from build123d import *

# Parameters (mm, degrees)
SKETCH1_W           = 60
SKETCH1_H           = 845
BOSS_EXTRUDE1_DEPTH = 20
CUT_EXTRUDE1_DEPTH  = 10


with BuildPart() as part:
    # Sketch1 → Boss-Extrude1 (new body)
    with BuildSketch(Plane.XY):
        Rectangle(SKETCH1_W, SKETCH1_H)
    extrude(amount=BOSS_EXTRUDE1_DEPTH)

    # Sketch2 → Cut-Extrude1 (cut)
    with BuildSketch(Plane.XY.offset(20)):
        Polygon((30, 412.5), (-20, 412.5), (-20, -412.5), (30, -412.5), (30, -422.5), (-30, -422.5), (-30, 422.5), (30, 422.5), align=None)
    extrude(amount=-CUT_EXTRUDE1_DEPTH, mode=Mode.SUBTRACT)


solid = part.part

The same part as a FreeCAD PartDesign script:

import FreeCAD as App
import Part
import Sketcher
from FreeCAD import Vector
Q = App.Units.Quantity


def add_polygon(sketch, points):
    """Adds a closed chain of lines whose ends are joined by coincident constraints."""
    first, n = sketch.GeometryCount, len(points)
    for a, b in zip(points, points[1:] + points[:1]):
        sketch.addGeometry(Part.LineSegment(App.Vector(*a, 0), App.Vector(*b, 0)), False)
    for i in range(n):
        sketch.addConstraint(Sketcher.Constraint("Coincident", first + i, 2, first + (i + 1) % n, 1))

doc = App.newDocument("Part")
params = doc.addObject("Spreadsheet::Sheet", "Params")
for row, (alias, value) in enumerate([
    ("sketch1_width", "60 mm"),
    ("sketch1_height", "845 mm"),
    ("pad1_length", "20 mm"),
    ("sketch2_width", "50 mm"),
    ("sketch2_width2", "60 mm"),
    ("sketch2_height", "10 mm"),
    ("sketch2_height2", "845 mm"),
    ("pocket1_length", "10 mm"),
], start=1):
    params.set(f"A{row}", alias)
    params.set(f"B{row}", "=" + value)
    params.setAlias(f"B{row}", alias)

body = doc.addObject("PartDesign::Body", "Body")

sketch1 = body.newObject("Sketcher::SketchObject", "Sketch")
sketch1.AttachmentSupport = (doc.getObject("XY_Plane"), [""])
sketch1.MapMode = "FlatFace"
add_polygon(sketch1, [(-30, 422), (-30, -422), (30, -422), (30, 422)])
sketch1.addConstraint(Sketcher.Constraint("Vertical", 0))
sketch1.addConstraint(Sketcher.Constraint("Horizontal", 1))
sketch1.addConstraint(Sketcher.Constraint("Vertical", 2))
sketch1.addConstraint(Sketcher.Constraint("Horizontal", 3))
sketch1.addConstraint(Sketcher.Constraint("Symmetric", 0, 2, 2, 2, -1, 1))
sketch1.addConstraint(Sketcher.Constraint("DistanceX", 1, 1, 1, 2, Q("60 mm")))
sketch1.addConstraint(Sketcher.Constraint("DistanceY", 0, 2, 0, 1, Q("845 mm")))
sketch1.setExpression("Constraints[9]", "Params.sketch1_width")
sketch1.setExpression("Constraints[10]", "Params.sketch1_height")
pad1 = body.newObject("PartDesign::Pad", "Pad")
pad1.Profile = sketch1
pad1.setExpression("Length", "Params.pad1_length")

sketch2 = body.newObject("Sketcher::SketchObject", "Sketch001")
sketch2.AttachmentSupport = (doc.getObject("XY_Plane"), [""])
sketch2.MapMode = "FlatFace"
sketch2.AttachmentOffset = App.Placement(Vector(0, 0, 20), App.Rotation())
add_polygon(sketch2, [(-20, 412), (30, 412), (30, 422), (-30, 422), (-30, -422), (30, -422), (30, -412), (-20, -412)])
sketch2.addConstraint(Sketcher.Constraint("Horizontal", 0))
sketch2.addConstraint(Sketcher.Constraint("Vertical", 1))
sketch2.addConstraint(Sketcher.Constraint("Horizontal", 2))
sketch2.addConstraint(Sketcher.Constraint("Vertical", 3))
sketch2.addConstraint(Sketcher.Constraint("Horizontal", 4))
sketch2.addConstraint(Sketcher.Constraint("Vertical", 5))
sketch2.addConstraint(Sketcher.Constraint("Horizontal", 6))
sketch2.addConstraint(Sketcher.Constraint("Vertical", 7))
sketch2.addConstraint(Sketcher.Constraint("Symmetric", 1, 2, 3, 2, -1, 1))
sketch2.addConstraint(Sketcher.Constraint("Symmetric", 0, 2, 5, 2, -1))
sketch2.addConstraint(Sketcher.Constraint("DistanceX", 0, 1, 0, 2, Q("50 mm")))
sketch2.addConstraint(Sketcher.Constraint("DistanceX", 2, 2, 2, 1, Q("60 mm")))
sketch2.addConstraint(Sketcher.Constraint("DistanceY", 1, 1, 1, 2, Q("10 mm")))
sketch2.addConstraint(Sketcher.Constraint("DistanceY", 3, 2, 3, 1, Q("845 mm")))
sketch2.setExpression("Constraints[18]", "Params.sketch2_width")
sketch2.setExpression("Constraints[19]", "Params.sketch2_width2")
sketch2.setExpression("Constraints[20]", "Params.sketch2_height")
sketch2.setExpression("Constraints[21]", "Params.sketch2_height2")
pocket1 = body.newObject("PartDesign::Pocket", "Pocket")
pocket1.Profile = sketch2
pocket1.setExpression("Length", "Params.pocket1_length")

doc.recompute()
